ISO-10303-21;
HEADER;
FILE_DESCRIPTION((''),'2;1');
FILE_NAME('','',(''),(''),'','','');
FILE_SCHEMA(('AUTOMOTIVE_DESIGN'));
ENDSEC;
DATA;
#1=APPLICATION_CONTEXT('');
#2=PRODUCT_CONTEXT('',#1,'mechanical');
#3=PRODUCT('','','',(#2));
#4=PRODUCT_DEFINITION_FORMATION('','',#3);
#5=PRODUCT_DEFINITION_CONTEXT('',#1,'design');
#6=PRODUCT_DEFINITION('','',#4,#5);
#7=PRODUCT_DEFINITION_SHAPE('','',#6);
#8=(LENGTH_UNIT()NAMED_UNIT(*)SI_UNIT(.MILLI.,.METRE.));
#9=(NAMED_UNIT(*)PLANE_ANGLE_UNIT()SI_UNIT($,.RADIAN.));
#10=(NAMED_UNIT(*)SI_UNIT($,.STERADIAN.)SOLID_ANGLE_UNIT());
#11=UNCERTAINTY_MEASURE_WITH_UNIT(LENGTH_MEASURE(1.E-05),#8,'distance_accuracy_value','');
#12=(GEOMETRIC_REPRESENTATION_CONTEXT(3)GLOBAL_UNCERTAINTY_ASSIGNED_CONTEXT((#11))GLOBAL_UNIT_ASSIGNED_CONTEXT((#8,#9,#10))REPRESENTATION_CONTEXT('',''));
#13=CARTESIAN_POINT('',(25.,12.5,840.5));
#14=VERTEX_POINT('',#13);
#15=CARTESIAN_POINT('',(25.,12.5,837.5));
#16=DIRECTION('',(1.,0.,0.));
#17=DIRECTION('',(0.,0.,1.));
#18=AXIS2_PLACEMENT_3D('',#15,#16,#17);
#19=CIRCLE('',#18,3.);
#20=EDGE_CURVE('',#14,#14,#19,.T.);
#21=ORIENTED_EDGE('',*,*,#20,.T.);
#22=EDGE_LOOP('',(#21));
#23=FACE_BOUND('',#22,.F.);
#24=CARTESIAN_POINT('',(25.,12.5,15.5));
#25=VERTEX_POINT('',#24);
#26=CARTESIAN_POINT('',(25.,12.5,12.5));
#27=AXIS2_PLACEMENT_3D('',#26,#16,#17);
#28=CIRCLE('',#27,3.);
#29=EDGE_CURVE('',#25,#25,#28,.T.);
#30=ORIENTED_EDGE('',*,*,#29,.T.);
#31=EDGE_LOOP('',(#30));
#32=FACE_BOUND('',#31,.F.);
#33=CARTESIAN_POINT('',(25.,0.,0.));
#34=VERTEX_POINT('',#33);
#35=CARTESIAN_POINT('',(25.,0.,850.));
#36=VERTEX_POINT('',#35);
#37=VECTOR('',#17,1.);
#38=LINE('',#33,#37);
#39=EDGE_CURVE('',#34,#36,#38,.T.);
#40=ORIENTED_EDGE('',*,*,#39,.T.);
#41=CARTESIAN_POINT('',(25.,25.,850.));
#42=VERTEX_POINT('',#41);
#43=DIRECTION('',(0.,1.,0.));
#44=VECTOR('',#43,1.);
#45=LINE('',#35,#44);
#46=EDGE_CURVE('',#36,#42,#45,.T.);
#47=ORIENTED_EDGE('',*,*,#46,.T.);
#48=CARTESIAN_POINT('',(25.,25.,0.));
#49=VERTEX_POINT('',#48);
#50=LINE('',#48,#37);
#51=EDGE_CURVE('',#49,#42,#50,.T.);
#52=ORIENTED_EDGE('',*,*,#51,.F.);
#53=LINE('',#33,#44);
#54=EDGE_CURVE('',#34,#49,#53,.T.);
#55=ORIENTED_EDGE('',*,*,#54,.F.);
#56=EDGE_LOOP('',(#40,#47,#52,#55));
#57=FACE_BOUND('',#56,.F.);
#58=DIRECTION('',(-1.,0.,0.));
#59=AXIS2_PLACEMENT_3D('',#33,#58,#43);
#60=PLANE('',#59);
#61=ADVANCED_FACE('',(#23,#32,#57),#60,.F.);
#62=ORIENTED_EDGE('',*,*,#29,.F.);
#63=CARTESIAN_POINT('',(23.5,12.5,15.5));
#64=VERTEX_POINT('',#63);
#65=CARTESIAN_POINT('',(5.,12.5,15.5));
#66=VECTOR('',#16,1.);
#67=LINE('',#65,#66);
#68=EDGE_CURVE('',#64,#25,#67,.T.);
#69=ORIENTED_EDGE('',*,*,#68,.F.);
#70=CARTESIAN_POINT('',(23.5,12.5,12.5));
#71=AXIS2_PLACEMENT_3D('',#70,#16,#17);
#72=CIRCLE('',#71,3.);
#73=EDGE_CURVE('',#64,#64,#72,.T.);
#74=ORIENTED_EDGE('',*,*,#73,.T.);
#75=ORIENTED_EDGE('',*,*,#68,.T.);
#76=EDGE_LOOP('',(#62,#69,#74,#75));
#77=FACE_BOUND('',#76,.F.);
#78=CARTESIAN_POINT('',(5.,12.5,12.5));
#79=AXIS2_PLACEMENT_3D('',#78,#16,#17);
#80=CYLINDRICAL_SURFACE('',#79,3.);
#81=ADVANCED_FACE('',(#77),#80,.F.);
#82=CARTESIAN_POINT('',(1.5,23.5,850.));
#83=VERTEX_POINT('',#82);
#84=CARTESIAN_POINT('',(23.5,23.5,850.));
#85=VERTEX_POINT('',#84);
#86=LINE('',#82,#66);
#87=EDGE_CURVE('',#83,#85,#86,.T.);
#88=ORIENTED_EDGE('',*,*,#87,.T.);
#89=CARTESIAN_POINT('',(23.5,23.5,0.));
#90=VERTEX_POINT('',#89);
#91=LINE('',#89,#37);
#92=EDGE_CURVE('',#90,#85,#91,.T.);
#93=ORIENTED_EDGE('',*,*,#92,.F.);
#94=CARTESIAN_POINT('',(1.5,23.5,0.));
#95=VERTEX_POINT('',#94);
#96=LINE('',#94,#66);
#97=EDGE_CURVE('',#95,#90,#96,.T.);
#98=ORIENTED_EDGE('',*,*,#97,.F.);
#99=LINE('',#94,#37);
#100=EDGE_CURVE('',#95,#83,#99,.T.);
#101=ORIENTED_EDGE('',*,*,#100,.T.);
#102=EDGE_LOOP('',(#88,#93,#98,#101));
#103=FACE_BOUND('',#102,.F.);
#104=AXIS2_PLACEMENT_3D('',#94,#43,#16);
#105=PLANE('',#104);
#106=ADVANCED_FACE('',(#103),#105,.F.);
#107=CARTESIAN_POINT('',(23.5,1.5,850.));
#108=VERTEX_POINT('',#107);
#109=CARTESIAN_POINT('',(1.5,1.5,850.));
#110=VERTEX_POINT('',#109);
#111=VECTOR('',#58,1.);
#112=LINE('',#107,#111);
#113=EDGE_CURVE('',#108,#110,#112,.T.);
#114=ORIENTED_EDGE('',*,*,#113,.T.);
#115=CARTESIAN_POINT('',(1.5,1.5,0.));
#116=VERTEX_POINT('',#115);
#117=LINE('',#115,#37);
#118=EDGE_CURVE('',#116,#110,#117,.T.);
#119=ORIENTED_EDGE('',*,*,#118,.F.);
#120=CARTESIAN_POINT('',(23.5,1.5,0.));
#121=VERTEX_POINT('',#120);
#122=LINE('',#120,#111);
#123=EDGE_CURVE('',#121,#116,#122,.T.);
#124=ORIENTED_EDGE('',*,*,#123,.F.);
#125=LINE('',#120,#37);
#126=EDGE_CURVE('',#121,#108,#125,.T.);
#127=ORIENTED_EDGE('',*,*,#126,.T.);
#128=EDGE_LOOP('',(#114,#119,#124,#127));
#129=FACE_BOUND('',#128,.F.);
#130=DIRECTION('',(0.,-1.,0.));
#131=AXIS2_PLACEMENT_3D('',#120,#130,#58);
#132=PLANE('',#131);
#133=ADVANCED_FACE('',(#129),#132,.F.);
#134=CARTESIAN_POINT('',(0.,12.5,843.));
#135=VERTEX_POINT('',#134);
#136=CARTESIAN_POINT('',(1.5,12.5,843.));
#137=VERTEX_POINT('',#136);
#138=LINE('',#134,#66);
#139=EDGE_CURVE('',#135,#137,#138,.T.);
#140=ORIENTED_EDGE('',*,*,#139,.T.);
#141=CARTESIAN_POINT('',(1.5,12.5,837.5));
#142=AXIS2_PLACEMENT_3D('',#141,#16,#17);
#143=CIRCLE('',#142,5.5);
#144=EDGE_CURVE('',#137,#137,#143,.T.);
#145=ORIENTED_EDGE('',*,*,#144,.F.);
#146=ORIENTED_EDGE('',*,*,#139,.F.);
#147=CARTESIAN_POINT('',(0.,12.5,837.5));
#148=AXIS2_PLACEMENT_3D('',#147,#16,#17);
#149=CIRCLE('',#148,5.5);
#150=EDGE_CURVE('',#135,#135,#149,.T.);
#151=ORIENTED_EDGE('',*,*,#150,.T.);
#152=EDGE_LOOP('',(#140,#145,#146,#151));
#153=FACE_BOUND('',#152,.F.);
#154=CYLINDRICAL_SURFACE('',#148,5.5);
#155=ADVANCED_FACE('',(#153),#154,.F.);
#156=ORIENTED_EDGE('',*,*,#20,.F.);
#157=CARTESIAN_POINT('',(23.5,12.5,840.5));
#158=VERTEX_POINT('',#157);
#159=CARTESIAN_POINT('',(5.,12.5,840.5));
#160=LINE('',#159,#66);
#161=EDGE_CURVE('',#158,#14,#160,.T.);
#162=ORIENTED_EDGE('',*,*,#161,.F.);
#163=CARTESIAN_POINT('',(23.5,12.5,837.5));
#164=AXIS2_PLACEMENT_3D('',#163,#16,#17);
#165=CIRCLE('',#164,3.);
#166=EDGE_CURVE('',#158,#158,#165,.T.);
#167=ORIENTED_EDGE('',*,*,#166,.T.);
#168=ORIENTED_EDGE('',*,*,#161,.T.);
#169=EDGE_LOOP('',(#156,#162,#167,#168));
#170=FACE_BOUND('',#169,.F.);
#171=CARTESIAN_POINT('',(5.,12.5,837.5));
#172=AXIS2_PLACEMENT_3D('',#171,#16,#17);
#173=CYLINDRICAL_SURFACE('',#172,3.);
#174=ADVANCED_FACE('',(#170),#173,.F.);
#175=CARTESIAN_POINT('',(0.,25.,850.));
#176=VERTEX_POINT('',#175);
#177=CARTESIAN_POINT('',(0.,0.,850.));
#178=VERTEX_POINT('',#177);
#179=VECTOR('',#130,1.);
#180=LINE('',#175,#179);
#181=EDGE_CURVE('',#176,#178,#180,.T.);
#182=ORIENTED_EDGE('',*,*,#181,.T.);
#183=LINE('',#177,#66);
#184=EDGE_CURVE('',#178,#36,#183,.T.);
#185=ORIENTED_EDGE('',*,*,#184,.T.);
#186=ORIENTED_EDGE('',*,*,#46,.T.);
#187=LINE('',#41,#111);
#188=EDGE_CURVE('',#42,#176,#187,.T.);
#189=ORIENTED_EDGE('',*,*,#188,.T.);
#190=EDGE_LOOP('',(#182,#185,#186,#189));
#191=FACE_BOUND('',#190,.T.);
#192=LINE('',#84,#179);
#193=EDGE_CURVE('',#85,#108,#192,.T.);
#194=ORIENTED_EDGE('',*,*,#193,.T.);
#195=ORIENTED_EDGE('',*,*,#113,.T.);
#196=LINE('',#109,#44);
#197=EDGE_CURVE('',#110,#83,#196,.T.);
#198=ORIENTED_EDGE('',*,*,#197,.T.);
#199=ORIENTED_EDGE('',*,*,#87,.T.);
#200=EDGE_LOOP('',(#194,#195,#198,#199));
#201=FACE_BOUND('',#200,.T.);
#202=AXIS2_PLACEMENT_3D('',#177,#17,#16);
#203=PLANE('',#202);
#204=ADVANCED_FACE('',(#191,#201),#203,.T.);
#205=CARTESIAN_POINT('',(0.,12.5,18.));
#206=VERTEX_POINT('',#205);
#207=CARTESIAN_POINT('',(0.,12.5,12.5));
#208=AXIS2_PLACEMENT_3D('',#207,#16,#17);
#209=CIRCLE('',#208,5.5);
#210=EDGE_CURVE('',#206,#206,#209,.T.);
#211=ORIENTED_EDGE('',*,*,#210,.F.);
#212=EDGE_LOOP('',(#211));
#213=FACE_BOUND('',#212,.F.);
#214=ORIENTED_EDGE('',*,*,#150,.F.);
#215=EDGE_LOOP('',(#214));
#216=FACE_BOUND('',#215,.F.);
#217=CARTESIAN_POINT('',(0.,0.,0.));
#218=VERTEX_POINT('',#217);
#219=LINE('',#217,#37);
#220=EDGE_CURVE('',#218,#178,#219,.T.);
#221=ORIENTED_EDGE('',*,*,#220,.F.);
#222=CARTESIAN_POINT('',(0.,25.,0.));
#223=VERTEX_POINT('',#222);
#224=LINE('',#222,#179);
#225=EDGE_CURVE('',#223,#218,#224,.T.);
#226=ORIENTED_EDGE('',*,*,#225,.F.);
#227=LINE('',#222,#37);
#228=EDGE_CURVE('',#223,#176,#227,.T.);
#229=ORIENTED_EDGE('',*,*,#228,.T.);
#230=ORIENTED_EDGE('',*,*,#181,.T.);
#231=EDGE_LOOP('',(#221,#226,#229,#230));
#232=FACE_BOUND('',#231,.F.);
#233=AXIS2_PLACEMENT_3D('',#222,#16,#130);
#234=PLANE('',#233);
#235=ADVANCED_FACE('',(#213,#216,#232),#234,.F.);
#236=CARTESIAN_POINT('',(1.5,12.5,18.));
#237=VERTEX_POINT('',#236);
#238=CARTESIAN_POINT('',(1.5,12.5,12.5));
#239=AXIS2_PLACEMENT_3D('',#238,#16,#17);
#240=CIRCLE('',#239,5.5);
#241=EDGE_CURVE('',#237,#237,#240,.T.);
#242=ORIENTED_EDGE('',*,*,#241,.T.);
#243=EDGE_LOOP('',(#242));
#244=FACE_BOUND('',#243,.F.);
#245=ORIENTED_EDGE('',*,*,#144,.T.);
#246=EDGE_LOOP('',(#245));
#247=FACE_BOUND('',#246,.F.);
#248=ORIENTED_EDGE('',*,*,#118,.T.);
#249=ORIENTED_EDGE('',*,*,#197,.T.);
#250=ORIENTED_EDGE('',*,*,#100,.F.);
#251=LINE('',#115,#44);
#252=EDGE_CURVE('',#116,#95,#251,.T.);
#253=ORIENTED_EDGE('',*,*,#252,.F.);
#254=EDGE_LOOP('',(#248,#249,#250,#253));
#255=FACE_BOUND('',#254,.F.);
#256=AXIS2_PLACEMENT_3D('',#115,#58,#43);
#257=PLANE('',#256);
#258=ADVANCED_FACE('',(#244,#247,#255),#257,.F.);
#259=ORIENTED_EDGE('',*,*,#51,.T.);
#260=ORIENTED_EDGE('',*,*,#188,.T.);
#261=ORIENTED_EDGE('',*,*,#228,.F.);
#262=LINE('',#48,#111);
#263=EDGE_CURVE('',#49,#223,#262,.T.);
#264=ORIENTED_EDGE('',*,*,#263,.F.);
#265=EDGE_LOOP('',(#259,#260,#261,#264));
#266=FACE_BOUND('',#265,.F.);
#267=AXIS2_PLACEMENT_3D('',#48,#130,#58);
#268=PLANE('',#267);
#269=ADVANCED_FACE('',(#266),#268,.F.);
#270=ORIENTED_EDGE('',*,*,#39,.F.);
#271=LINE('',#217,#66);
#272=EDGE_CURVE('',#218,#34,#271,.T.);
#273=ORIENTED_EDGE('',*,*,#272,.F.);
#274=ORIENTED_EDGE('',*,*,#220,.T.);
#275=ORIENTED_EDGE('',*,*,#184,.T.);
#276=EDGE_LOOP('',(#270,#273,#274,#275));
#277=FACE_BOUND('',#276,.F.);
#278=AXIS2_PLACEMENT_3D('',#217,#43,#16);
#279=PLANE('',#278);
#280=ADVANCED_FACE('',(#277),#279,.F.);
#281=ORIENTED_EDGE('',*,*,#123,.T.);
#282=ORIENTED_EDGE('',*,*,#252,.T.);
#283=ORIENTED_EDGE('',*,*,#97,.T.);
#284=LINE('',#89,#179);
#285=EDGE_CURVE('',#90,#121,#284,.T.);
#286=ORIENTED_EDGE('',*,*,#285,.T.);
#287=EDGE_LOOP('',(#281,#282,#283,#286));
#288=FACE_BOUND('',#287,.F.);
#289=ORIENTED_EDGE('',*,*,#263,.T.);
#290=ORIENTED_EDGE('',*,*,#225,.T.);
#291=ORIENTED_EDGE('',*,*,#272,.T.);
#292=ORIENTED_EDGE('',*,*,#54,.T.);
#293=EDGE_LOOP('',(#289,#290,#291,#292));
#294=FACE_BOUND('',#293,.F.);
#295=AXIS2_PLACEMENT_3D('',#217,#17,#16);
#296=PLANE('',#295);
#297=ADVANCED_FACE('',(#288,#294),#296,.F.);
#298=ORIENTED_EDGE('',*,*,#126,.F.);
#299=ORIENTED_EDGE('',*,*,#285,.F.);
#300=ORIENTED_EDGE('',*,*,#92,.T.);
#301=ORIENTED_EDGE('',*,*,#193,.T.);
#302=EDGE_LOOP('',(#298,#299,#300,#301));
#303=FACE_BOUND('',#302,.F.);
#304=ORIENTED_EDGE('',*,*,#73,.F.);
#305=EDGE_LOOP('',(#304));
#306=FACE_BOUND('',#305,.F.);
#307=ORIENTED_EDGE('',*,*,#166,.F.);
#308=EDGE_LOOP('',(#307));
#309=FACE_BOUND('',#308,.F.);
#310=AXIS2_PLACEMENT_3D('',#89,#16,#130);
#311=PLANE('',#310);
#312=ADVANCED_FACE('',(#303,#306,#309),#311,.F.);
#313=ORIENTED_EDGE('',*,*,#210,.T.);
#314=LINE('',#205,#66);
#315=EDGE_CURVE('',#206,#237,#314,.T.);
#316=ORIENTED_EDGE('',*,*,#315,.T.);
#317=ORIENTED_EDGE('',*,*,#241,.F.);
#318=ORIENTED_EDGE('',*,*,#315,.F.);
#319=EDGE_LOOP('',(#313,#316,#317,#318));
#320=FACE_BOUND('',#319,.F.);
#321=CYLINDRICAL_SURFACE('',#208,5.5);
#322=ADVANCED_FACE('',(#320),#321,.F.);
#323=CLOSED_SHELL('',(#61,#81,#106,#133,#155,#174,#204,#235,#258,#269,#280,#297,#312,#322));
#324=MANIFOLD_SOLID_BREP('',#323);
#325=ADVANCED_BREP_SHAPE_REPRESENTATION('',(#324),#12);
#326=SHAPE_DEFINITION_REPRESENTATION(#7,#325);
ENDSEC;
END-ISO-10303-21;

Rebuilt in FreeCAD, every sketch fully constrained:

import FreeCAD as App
import Part
import Sketcher

doc = App.newDocument("Part")
params = doc.addObject("Spreadsheet::Sheet", "Params")
for row, (alias, value) in enumerate([
    ("sketch1_width", "25 mm"),
    ("pad1_length", "850 mm"),
    ("sketch2_diameter", "6 mm"),
    ("hole_diameter", "6 mm"),
    ("hole_cbore_diameter", "11 mm"),
    ("hole_cbore_depth", "5 mm"),
], start=1):
    params.set(f"A{row}", alias)
    params.set(f"B{row}", "=" + value)
    params.setAlias(f"B{row}", alias)

body = doc.addObject("PartDesign::Body", "Body")

# Sketch on XY plane
sketch1 = body.newObject("Sketcher::SketchObject", "Sketch")
sketch1.AttachmentSupport = (doc.getObject("XY_Plane"), [""])
sketch1.MapMode = "FlatFace"
sketch1.addGeometry([
    Part.LineSegment(App.Vector(0, 25, 0), App.Vector(0, 0, 0)),  # 0
    Part.LineSegment(App.Vector(0, 0, 0), App.Vector(25, 0, 0)),  # 1
    Part.LineSegment(App.Vector(25, 0, 0), App.Vector(25, 25, 0)),  # 2
    Part.LineSegment(App.Vector(25, 25, 0), App.Vector(0, 25, 0)),  # 3
    Part.LineSegment(App.Vector(2, 24, 0), App.Vector(24, 24, 0)),  # 4
    Part.LineSegment(App.Vector(24, 24, 0), App.Vector(24, 2, 0)),  # 5
    Part.LineSegment(App.Vector(24, 2, 0), App.Vector(2, 2, 0)),  # 6
    Part.LineSegment(App.Vector(2, 2, 0), App.Vector(2, 24, 0)),  # 7
], False)
sketch1.addConstraint([
    Sketcher.Constraint("Coincident", 0, 2, 1, 1),
    Sketcher.Constraint("Coincident", 1, 2, 2, 1),
    Sketcher.Constraint("Coincident", 2, 2, 3, 1),
    Sketcher.Constraint("Coincident", 3, 2, 0, 1),
    Sketcher.Constraint("Coincident", 4, 2, 5, 1),
    Sketcher.Constraint("Coincident", 5, 2, 6, 1),
    Sketcher.Constraint("Coincident", 6, 2, 7, 1),
    Sketcher.Constraint("Coincident", 7, 2, 4, 1),
    Sketcher.Constraint("Vertical", 0),
    Sketcher.Constraint("Horizontal", 1),
    Sketcher.Constraint("Vertical", 2),
    Sketcher.Constraint("Horizontal", 3),
    Sketcher.Constraint("Horizontal", 4),
    Sketcher.Constraint("Vertical", 5),
    Sketcher.Constraint("Horizontal", 6),
    Sketcher.Constraint("Vertical", 7),
    Sketcher.Constraint("Coincident", 0, 2, -1, 1),
    Sketcher.Constraint("Equal", 3, 0),
    Sketcher.Constraint("Equal", 6, 5),
    Sketcher.Constraint("DistanceX", 1, 1, 1, 2, 25.0),
    Sketcher.Constraint("DistanceY", -1, 1, 5, 2, 1.5),
    Sketcher.Constraint("DistanceX", -1, 1, 6, 2, 1.5),
    Sketcher.Constraint("DistanceX", 4, 2, 2, 2, 1.5),
])
sketch1.setExpression("Constraints[19]", "Params.sketch1_width")
pad1 = body.newObject("PartDesign::Pad", "Pad")
pad1.Profile = sketch1
pad1.setExpression("Length", "Params.pad1_length")

# Sketch on YZ plane
sketch2 = body.newObject("Sketcher::SketchObject", "Sketch001")
sketch2.AttachmentSupport = (doc.getObject("YZ_Plane"), [""])
sketch2.MapMode = "FlatFace"
sketch2.addGeometry([
    Part.Circle(App.Vector(12.5, 837.5, 0), App.Vector(0, 0, 1), 3),
    Part.Circle(App.Vector(12.5, 12.5, 0), App.Vector(0, 0, 1), 3),
], False)
sketch2.addConstraint([
    Sketcher.Constraint("Equal", 0, 1),
    Sketcher.Constraint("Vertical", 0, 3, 1, 3),
    Sketcher.Constraint("Diameter", 0, 6.0),
    Sketcher.Constraint("DistanceY", 1, 3, 0, 3, 825.0),
    Sketcher.Constraint("DistanceX", -1, 1, 0, 3, 12.5),
    Sketcher.Constraint("DistanceY", -1, 1, 0, 3, 837.5),
])
sketch2.setExpression("Constraints[2]", "Params.sketch2_diameter")
doc.recompute()
hole = body.newObject("PartDesign::Hole", "Hole")
hole.Profile = sketch2
hole.ThreadType = "None"
hole.setExpression("Diameter", "Params.hole_diameter")
hole.DepthType = "ThroughAll"
hole.HoleCutType = "Counterbore"
hole.setExpression("HoleCutDiameter", "Params.hole_cbore_diameter")
hole.setExpression("HoleCutDepth", "Params.hole_cbore_depth")
hole.Reversed = True

doc.recompute()
